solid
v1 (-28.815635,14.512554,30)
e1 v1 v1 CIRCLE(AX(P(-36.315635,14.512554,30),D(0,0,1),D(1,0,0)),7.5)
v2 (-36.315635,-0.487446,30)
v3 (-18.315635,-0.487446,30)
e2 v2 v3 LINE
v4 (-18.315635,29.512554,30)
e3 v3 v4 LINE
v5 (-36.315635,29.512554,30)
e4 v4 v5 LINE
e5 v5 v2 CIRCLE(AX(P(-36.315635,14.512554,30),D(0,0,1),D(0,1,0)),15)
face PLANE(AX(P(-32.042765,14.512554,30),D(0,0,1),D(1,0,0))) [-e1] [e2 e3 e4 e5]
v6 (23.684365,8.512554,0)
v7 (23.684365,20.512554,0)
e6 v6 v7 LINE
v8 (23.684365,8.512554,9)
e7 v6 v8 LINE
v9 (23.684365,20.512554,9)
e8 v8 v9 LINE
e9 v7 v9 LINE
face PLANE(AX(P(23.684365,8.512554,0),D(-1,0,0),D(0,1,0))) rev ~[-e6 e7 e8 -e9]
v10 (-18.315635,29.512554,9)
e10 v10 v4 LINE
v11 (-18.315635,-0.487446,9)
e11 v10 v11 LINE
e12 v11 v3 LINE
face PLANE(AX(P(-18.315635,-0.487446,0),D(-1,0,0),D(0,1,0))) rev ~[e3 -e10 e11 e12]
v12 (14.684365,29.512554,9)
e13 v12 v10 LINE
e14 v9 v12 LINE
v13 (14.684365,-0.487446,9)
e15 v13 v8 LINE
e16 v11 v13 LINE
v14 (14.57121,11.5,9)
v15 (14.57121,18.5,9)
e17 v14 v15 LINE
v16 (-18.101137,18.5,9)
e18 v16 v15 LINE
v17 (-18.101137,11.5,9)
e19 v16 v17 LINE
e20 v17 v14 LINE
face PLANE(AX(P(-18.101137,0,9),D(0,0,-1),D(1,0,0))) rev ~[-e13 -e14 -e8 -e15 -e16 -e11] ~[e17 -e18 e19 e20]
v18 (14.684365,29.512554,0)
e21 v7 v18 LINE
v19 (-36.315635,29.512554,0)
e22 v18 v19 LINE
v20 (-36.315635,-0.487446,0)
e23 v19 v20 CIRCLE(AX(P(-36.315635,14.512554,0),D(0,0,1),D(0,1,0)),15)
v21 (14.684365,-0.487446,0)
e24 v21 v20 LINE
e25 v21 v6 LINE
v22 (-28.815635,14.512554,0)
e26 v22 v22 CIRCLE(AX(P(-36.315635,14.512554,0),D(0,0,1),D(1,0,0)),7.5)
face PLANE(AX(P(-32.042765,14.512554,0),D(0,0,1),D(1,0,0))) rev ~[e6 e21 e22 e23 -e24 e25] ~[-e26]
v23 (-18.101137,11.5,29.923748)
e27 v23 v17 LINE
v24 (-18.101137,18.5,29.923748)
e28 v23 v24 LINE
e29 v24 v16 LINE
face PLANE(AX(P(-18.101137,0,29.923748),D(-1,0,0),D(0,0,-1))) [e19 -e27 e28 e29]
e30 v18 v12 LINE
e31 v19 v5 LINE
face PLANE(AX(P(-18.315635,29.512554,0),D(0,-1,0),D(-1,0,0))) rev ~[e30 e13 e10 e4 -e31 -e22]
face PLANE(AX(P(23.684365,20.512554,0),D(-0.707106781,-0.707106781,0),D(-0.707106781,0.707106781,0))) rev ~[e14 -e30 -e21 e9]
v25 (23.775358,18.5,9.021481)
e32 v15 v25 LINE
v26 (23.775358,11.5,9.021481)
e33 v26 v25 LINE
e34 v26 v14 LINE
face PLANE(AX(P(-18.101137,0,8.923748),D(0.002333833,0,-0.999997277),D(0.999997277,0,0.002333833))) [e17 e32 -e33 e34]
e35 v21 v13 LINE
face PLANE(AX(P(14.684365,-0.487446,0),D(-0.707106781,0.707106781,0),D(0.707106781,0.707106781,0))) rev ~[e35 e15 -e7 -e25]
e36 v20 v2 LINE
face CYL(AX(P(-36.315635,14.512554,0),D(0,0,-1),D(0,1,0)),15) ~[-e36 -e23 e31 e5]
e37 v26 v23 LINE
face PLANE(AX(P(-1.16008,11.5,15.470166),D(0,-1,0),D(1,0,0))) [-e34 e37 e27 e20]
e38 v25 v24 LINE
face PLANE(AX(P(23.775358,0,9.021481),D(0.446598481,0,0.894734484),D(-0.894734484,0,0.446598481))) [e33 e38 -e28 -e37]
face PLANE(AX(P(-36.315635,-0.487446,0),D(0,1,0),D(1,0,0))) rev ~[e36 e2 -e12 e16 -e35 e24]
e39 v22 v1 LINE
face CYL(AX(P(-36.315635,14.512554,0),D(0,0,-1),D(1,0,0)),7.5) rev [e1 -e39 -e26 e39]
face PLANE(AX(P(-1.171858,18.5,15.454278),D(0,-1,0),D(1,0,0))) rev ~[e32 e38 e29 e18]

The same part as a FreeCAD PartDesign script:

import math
import FreeCAD as App
import Part
import Sketcher
Q = App.Units.Quantity

doc = App.newDocument("Part")
body = doc.addObject("PartDesign::Body", "Body")

# Sketch on XY plane
sketch1 = body.newObject("Sketcher::SketchObject", "Sketch")
sketch1.AttachmentSupport = (doc.getObject("XY_Plane"), [""])
sketch1.MapMode = "FlatFace"
sketch1.addGeometry([
    Part.LineSegment(App.Vector(-18, 0, 0), App.Vector(15, 0, 0)),  # 0
    Part.LineSegment(App.Vector(15, 0, 0), App.Vector(24, 9, 0)),  # 1
    Part.LineSegment(App.Vector(24, 9, 0), App.Vector(24, 21, 0)),  # 2
    Part.LineSegment(App.Vector(24, 21, 0), App.Vector(15, 30, 0)),  # 3
    Part.LineSegment(App.Vector(15, 30, 0), App.Vector(-18, 30, 0)),  # 4
    Part.LineSegment(App.Vector(-18, 30, 0), App.Vector(-18, 0, 0)),  # 5
], False)
sketch1.addConstraint([
    Sketcher.Constraint("Coincident", 0, 2, 1, 1),
    Sketcher.Constraint("Coincident", 1, 2, 2, 1),
    Sketcher.Constraint("Coincident", 2, 2, 3, 1),
    Sketcher.Constraint("Coincident", 3, 2, 4, 1),
    Sketcher.Constraint("Coincident", 4, 2, 5, 1),
    Sketcher.Constraint("Coincident", 5, 2, 0, 1),
    Sketcher.Constraint("Horizontal", 0),
    Sketcher.Constraint("Vertical", 2),
    Sketcher.Constraint("Horizontal", 4),
    Sketcher.Constraint("Vertical", 5),
    Sketcher.Constraint("Perpendicular", 1, 3),
    Sketcher.Constraint("Vertical", 0, 2, 3, 2),
    Sketcher.Constraint("Equal", 1, 3),
    Sketcher.Constraint("DistanceX", 0, 1, 0, 2, Q("33 mm")),
    Sketcher.Constraint("DistanceY", 2, 1, 2, 2, Q("12 mm")),
    Sketcher.Constraint("DistanceY", 5, 2, 5, 1, Q("30 mm")),
    Sketcher.Constraint("DistanceX", -1, 1, 0, 2, Q("14.684365 mm")),
    Sketcher.Constraint("DistanceY", 0, 2, -1, 1, Q("0.487446 mm")),
])
pad1 = body.newObject("PartDesign::Pad", "Pad")
pad1.Profile = sketch1
pad1.Length = 9

# Sketch on XY plane
sketch2 = body.newObject("Sketcher::SketchObject", "Sketch001")
sketch2.AttachmentSupport = (doc.getObject("XY_Plane"), [""])
sketch2.MapMode = "FlatFace"
sketch2.addGeometry([
    Part.LineSegment(App.Vector(-18, 30, 0), App.Vector(-36, 30, 0)),  # 0
    Part.ArcOfCircle(Part.Circle(App.Vector(-36, 15, 0), App.Vector(0, 0, 1), 15), math.radians(90), math.radians(270)),  # 1
    Part.LineSegment(App.Vector(-36, 0, 0), App.Vector(-18, 0, 0)),  # 2
    Part.LineSegment(App.Vector(-18, 0, 0), App.Vector(-18, 30, 0)),  # 3
    Part.Circle(App.Vector(-36, 15, 0), App.Vector(0, 0, 1), 8),  # 4
], False)
sketch2.addConstraint([
    Sketcher.Constraint("Tangent", 0, 2, 1, 1),
    Sketcher.Constraint("Tangent", 1, 2, 2, 1),
    Sketcher.Constraint("Coincident", 2, 2, 3, 1),
    Sketcher.Constraint("Coincident", 3, 2, 0, 1),
    Sketcher.Constraint("Horizontal", 0),
    Sketcher.Constraint("Horizontal", 2),
    Sketcher.Constraint("Vertical", 3),
    Sketcher.Constraint("Coincident", 4, 3, 1, 3),
    Sketcher.Constraint("Diameter", 4, Q("15 mm")),
    Sketcher.Constraint("Radius", 1, Q("15 mm")),
    Sketcher.Constraint("DistanceX", 0, 2, 0, 1, Q("18 mm")),
    Sketcher.Constraint("DistanceX", 1, 3, -1, 1, Q("36.315635 mm")),
    Sketcher.Constraint("DistanceY", -1, 1, 1, 3, Q("14.512554 mm")),
])
pad2 = body.newObject("PartDesign::Pad", "Pad001")
pad2.Profile = sketch2
pad2.Length = 30

# Sketch on XZ plane
sketch3 = body.newObject("Sketcher::SketchObject", "Sketch002")
sketch3.AttachmentSupport = (doc.getObject("XZ_Plane"), [""])
sketch3.MapMode = "FlatFace"
sketch3.addGeometry([
    Part.LineSegment(App.Vector(24, 9, 0), App.Vector(-18, 30, 0)),
    Part.LineSegment(App.Vector(-18, 30, 0), App.Vector(-18, 9, 0)),
    Part.LineSegment(App.Vector(-18, 9, 0), App.Vector(24, 9, 0)),
], False)
sketch3.addConstraint([
    Sketcher.Constraint("Coincident", 0, 2, 1, 1),
    Sketcher.Constraint("Coincident", 1, 2, 2, 1),
    Sketcher.Constraint("Coincident", 2, 2, 0, 1),
    Sketcher.Constraint("Vertical", 1),
    Sketcher.Constraint("DistanceY", 1, 2, 1, 1, Q("21 mm")),
    Sketcher.Constraint("Distance", 2, Q("41.876609 mm")),
    Sketcher.Constraint("DistanceY", -1, 1, 0, 2, Q("29.923748 mm")),
    Sketcher.Constraint("DistanceX", -1, 1, 2, 2, Q("23.775358 mm")),
    Sketcher.Constraint("DistanceY", -1, 1, 2, 2, Q("9.021481 mm")),
])
pad3 = body.newObject("PartDesign::Pad", "Pad002")
pad3.Profile = sketch3
pad3.Length = 18.5
pad3.Reversed = True

# Sketch on XZ plane
sketch4 = body.newObject("Sketcher::SketchObject", "Sketch003")
sketch4.AttachmentSupport = (doc.getObject("XZ_Plane"), [""])
sketch4.MapMode = "FlatFace"
sketch4.addGeometry([
    Part.LineSegment(App.Vector(15, 9, 0), App.Vector(24, 9, 0)),
    Part.LineSegment(App.Vector(24, 9, 0), App.Vector(-18, 30, 0)),
    Part.LineSegment(App.Vector(-18, 30, 0), App.Vector(-18, 9, 0)),
    Part.LineSegment(App.Vector(-18, 9, 0), App.Vector(15, 9, 0)),
], False)
sketch4.addConstraint([
    Sketcher.Constraint("Coincident", 0, 2, 1, 1),
    Sketcher.Constraint("Coincident", 1, 2, 2, 1),
    Sketcher.Constraint("Coincident", 2, 2, 3, 1),
    Sketcher.Constraint("Coincident", 3, 2, 0, 1),
    Sketcher.Constraint("Vertical", 2),
    Sketcher.Constraint("Horizontal", 3),
    Sketcher.Constraint("DistanceY", -1, 1, 2, 2, Q("9 mm")),
    Sketcher.Constraint("DistanceY", 2, 2, 2, 1, Q("20.923748 mm")),
    Sketcher.Constraint("DistanceX", 3, 1, 3, 2, Q("32.672487 mm")),
    Sketcher.Constraint("DistanceX", -1, 1, 0, 2, Q("23.775358 mm")),
    Sketcher.Constraint("DistanceY", -1, 1, 0, 2, Q("9.021481 mm")),
    Sketcher.Constraint("DistanceX", -1, 1, 3, 2, Q("14.57135 mm")),
])
pocket1 = body.newObject("PartDesign::Pocket", "Pocket")
pocket1.Profile = sketch4
pocket1.Length = 11.5

doc.recompute()
